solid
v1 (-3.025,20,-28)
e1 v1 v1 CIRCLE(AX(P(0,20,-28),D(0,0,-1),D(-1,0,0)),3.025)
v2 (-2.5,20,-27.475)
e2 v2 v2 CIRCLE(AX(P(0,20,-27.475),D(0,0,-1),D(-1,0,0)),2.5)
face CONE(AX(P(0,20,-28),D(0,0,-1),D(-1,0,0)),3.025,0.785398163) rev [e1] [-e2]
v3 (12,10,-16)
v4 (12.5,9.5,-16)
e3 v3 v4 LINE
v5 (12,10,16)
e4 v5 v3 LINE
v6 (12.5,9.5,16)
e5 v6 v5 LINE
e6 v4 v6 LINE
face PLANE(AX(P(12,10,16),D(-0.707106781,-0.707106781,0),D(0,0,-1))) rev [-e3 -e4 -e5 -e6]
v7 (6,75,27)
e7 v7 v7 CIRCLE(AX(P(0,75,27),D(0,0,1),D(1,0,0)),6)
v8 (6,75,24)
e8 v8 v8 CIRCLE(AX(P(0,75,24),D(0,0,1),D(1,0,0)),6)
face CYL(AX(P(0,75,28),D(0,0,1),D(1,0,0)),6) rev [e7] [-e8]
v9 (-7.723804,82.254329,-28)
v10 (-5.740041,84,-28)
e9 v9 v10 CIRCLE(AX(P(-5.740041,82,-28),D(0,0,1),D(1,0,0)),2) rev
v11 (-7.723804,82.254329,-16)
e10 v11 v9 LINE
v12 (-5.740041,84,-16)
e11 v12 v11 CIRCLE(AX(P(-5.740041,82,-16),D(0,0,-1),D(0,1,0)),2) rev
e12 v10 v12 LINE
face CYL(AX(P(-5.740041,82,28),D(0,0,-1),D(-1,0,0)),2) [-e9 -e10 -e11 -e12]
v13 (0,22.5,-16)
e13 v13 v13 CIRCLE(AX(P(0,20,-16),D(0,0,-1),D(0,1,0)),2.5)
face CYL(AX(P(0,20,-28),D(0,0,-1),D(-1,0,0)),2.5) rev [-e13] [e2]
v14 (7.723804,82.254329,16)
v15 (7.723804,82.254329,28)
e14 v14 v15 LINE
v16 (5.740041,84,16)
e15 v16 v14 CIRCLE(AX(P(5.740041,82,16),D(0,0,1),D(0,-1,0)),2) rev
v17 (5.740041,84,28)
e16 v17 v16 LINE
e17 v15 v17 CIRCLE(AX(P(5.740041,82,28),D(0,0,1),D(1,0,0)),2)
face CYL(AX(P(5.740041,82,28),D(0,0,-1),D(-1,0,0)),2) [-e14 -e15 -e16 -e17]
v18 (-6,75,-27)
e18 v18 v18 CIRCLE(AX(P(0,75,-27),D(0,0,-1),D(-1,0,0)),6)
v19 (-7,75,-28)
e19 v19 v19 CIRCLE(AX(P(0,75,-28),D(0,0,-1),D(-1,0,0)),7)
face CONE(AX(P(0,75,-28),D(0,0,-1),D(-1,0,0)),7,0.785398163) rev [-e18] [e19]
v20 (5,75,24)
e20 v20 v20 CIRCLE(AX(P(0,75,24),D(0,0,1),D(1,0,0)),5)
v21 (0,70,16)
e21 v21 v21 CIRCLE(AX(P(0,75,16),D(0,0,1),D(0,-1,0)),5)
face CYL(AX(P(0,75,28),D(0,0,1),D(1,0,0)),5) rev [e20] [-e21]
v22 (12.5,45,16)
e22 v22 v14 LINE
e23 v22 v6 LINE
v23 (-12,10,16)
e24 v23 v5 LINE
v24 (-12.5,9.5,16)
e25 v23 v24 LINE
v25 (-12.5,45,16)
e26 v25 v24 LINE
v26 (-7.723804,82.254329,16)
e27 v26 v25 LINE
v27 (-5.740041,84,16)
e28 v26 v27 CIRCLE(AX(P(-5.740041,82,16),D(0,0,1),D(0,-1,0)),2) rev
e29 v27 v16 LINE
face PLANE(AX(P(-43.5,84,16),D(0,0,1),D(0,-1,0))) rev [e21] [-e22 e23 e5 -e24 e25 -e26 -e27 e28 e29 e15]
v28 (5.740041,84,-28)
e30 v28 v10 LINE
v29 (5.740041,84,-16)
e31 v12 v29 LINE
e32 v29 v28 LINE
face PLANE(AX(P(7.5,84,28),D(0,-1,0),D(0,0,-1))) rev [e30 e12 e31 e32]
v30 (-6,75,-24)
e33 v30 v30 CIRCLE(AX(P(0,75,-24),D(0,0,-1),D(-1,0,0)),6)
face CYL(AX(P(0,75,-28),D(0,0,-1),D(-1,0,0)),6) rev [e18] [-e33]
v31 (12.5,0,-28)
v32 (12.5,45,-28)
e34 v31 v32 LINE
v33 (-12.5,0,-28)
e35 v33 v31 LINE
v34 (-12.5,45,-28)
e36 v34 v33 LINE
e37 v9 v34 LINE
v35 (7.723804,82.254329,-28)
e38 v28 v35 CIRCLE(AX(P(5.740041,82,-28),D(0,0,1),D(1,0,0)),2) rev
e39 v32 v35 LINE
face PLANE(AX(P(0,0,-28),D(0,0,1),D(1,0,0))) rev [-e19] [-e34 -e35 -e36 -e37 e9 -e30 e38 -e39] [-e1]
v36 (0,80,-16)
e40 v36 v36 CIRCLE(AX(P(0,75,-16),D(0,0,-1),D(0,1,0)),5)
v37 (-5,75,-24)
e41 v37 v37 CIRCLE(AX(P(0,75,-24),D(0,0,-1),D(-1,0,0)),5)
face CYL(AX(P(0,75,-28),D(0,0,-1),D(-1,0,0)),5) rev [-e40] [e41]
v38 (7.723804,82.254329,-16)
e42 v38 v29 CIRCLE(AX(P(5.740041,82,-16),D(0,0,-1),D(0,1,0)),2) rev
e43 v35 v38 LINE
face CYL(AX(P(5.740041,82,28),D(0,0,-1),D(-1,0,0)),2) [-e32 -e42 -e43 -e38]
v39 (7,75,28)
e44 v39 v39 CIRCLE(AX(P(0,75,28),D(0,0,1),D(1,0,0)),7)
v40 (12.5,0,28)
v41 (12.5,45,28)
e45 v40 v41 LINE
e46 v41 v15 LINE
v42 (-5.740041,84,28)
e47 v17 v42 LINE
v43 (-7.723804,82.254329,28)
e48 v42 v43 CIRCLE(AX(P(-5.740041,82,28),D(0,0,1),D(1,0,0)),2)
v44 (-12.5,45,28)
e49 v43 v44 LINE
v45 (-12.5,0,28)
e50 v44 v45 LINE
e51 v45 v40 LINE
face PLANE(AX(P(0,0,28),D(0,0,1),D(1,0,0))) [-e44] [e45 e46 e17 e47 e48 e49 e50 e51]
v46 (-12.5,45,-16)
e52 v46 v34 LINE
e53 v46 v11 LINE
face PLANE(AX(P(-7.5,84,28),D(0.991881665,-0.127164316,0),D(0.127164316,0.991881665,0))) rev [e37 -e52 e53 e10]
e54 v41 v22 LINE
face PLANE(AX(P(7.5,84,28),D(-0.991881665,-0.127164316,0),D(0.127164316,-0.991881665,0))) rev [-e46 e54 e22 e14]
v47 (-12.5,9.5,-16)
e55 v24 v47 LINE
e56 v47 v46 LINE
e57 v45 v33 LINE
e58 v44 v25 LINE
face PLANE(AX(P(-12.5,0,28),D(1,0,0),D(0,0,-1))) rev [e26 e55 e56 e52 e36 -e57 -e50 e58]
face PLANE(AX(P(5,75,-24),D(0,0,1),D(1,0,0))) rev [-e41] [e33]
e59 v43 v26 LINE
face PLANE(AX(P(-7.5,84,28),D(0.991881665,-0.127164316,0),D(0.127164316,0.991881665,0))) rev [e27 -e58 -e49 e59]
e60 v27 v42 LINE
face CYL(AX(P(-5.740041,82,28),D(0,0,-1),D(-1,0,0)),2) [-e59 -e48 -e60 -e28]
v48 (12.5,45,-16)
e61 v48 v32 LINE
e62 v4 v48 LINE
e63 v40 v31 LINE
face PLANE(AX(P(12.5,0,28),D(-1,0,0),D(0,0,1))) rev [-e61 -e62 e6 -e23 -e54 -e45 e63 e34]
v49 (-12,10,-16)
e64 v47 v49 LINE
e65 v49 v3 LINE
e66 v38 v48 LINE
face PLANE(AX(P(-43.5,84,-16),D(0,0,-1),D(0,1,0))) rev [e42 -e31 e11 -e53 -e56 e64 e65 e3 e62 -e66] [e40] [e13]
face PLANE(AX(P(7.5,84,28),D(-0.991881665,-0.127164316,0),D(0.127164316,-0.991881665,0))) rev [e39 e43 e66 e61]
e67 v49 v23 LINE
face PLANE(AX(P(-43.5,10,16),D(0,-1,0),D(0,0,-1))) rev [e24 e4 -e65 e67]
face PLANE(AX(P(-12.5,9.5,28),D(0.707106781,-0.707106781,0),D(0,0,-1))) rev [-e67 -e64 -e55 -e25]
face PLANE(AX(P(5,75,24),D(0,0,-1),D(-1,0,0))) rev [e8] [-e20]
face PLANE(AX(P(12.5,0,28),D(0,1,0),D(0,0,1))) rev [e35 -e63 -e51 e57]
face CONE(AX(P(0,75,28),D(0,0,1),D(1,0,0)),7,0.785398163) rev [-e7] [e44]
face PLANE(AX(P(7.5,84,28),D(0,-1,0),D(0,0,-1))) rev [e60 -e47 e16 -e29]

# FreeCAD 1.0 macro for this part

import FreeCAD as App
import Part
import Sketcher
from FreeCAD import Vector
Q = App.Units.Quantity


def edges_at(feature, points):
    """Names of the edges that pass closest to the given points."""
    edges = feature.Shape.Edges
    near = lambda p: min(range(len(edges)), key=lambda i: edges[i].distToShape(Part.Vertex(*p))[0])
    return sorted({f"Edge{near(p) + 1}" for p in points})


def add_polygon(sketch, points):
    """Adds a closed chain of lines whose ends are joined by coincident constraints."""
    first, n = sketch.GeometryCount, len(points)
    for a, b in zip(points, points[1:] + points[:1]):
        sketch.addGeometry(Part.LineSegment(App.Vector(*a, 0), App.Vector(*b, 0)), False)
    for i in range(n):
        sketch.addConstraint(Sketcher.Constraint("Coincident", first + i, 2, first + (i + 1) % n, 1))

doc = App.newDocument("Part")
body = doc.addObject("PartDesign::Body", "Body")

sketch1 = body.newObject("Sketcher::SketchObject", "Sketch")
sketch1.AttachmentSupport = (doc.getObject("XY_Plane"), [""])
sketch1.MapMode = "FlatFace"
add_polygon(sketch1, [(-12, 0), (12, 0), (12, 45), (8, 84), (-8, 84), (-12, 45)])
sketch1.addConstraint([
    Sketcher.Constraint("Horizontal", 0),
    Sketcher.Constraint("Vertical", 1),
    Sketcher.Constraint("Horizontal", 3),
    Sketcher.Constraint("Vertical", 5),
    Sketcher.Constraint("Symmetric", 0, 2, 5, 2, -1, 1),
    Sketcher.Constraint("Horizontal", 1, 2, 4, 2),
    Sketcher.Constraint("Equal", 2, 4),
    Sketcher.Constraint("DistanceX", 0, 1, 0, 2, 25.0),
    Sketcher.Constraint("DistanceX", 3, 2, 3, 1, 15.0),
    Sketcher.Constraint("DistanceY", 1, 1, 1, 2, 45.0),
    Sketcher.Constraint("DistanceY", -1, 1, 2, 2, 84.0),
])
pad1 = body.newObject("PartDesign::Pad", "Pad")
pad1.Profile = sketch1
pad1.Length = 56
pad1.Midplane = True

sketch2 = body.newObject("Sketcher::SketchObject", "Sketch001")
sketch2.AttachmentSupport = (doc.getObject("YZ_Plane"), [""])
sketch2.MapMode = "FlatFace"
sketch2.AttachmentOffset = App.Placement(Vector(0, 0, 12.5), App.Rotation())
add_polygon(sketch2, [(84, 16), (10, 16), (10, -16), (84, -16)])
sketch2.addConstraint([
    Sketcher.Constraint("Horizontal", 0),
    Sketcher.Constraint("Vertical", 1),
    Sketcher.Constraint("Horizontal", 2),
    Sketcher.Constraint("Vertical", 3),
    Sketcher.Constraint("DistanceX", 0, 2, 0, 1, 74.0),
    Sketcher.Constraint("DistanceY", 1, 2, 1, 1, 32.0),
    Sketcher.Constraint("DistanceX", -1, 1, 0, 2, 10.0),
    Sketcher.Constraint("DistanceY", -1, 1, 0, 2, 16.0),
])
pocket1 = body.newObject("PartDesign::Pocket", "Pocket")
pocket1.Profile = sketch2
pocket1.Length = 56

sketch3 = body.newObject("Sketcher::SketchObject", "Sketch002")
sketch3.AttachmentSupport = (doc.getObject("YZ_Plane"), [""])
sketch3.MapMode = "FlatFace"
add_polygon(sketch3, [(75, -5), (75, -28), (82, -28), (81, -27), (81, -24), (80, -24), (80, -8)])
sketch3.addGeometry(Part.LineSegment(Vector(75, -28, 0), Vector(75, -5, 0)), True)
sketch3.addConstraint([
    Sketcher.Constraint("Vertical", 0),
    Sketcher.Constraint("Horizontal", 1),
    Sketcher.Constraint("Vertical", 3),
    Sketcher.Constraint("Horizontal", 4),
    Sketcher.Constraint("Vertical", 5),
    Sketcher.Constraint("Vertical", 7),
    Sketcher.Constraint("Coincident", 7, 1, 0, 2),
    Sketcher.Constraint("Equal", 0, 7),
    Sketcher.Constraint("DistanceX", 1, 1, 1, 2, 7.0),
    Sketcher.Constraint("DistanceX", 4, 2, 4, 1, 1.0),
    Sketcher.Constraint("DistanceY", 3, 1, 3, 2, 3.0),
    Sketcher.Constraint("DistanceY", 5, 1, 5, 2, 16.0),
    Sketcher.Constraint("Angle", 2, Q("135 deg")),
    Sketcher.Constraint("Angle", 6, Q("149 deg")),
    Sketcher.Constraint("DistanceX", -1, 1, 0, 2, 75.0),
    Sketcher.Constraint("DistanceY", 0, 2, -1, 1, 28.0),
    Sketcher.Constraint("DistanceX", -1, 1, 2, 2, 81.0),
])
groove = body.newObject("PartDesign::Groove", "Groove")
groove.Profile = sketch3
groove.ReferenceAxis = (sketch3, ["Axis0"])
groove.Angle = 360
doc.recompute()

mirrored = body.newObject("PartDesign::Mirrored", "Mirrored")
mirrored.Originals = [groove]
mirrored.MirrorPlane = (doc.getObject("XY_Plane"), [""])
body.Tip = mirrored
doc.recompute()

fillet = body.newObject("PartDesign::Fillet", "Fillet")
fillet.Base = (mirrored, edges_at(mirrored, [
    (-7.5, 84, 22),
    (7.5, 84, 22),
    (-7.5, 84, -22),
    (7.5, 84, -22),
]))
fillet.Radius = 2
doc.recompute()

chamfer = body.newObject("PartDesign::Chamfer", "Chamfer")
chamfer.Base = (fillet, edges_at(fillet, [(-12.5, 10, 0), (12.5, 10, 0)]))
chamfer.Size = 0.5

sketch4 = body.newObject("Sketcher::SketchObject", "Sketch003")
sketch4.AttachmentSupport = (doc.getObject("XY_Plane"), [""])
sketch4.MapMode = "FlatFace"
sketch4.AttachmentOffset = App.Placement(Vector(0, 0, -28), App.Rotation())
sketch4.addGeometry(Part.Circle(Vector(0, 20, 0), Vector(0, 0, 1), 2.5), False)
sketch4.addConstraint([
    Sketcher.Constraint("PointOnObject", 0, 3, -2),
    Sketcher.Constraint("Diameter", 0, 5.0),
    Sketcher.Constraint("DistanceY", -1, 1, 0, 3, 20.0),
])
doc.recompute()
hole = body.newObject("PartDesign::Hole", "Hole")
hole.Profile = sketch4
hole.ThreadType = "None"
hole.Diameter = 5
hole.DepthType = "Dimension"
hole.Depth = 27
hole.DrillPoint = "Angled"
hole.DrillPointAngle = 118
hole.HoleCutType = "Countersink"
hole.HoleCutDiameter = 6.05
hole.HoleCutCountersinkAngle = 90
hole.Reversed = True

doc.recompute()
